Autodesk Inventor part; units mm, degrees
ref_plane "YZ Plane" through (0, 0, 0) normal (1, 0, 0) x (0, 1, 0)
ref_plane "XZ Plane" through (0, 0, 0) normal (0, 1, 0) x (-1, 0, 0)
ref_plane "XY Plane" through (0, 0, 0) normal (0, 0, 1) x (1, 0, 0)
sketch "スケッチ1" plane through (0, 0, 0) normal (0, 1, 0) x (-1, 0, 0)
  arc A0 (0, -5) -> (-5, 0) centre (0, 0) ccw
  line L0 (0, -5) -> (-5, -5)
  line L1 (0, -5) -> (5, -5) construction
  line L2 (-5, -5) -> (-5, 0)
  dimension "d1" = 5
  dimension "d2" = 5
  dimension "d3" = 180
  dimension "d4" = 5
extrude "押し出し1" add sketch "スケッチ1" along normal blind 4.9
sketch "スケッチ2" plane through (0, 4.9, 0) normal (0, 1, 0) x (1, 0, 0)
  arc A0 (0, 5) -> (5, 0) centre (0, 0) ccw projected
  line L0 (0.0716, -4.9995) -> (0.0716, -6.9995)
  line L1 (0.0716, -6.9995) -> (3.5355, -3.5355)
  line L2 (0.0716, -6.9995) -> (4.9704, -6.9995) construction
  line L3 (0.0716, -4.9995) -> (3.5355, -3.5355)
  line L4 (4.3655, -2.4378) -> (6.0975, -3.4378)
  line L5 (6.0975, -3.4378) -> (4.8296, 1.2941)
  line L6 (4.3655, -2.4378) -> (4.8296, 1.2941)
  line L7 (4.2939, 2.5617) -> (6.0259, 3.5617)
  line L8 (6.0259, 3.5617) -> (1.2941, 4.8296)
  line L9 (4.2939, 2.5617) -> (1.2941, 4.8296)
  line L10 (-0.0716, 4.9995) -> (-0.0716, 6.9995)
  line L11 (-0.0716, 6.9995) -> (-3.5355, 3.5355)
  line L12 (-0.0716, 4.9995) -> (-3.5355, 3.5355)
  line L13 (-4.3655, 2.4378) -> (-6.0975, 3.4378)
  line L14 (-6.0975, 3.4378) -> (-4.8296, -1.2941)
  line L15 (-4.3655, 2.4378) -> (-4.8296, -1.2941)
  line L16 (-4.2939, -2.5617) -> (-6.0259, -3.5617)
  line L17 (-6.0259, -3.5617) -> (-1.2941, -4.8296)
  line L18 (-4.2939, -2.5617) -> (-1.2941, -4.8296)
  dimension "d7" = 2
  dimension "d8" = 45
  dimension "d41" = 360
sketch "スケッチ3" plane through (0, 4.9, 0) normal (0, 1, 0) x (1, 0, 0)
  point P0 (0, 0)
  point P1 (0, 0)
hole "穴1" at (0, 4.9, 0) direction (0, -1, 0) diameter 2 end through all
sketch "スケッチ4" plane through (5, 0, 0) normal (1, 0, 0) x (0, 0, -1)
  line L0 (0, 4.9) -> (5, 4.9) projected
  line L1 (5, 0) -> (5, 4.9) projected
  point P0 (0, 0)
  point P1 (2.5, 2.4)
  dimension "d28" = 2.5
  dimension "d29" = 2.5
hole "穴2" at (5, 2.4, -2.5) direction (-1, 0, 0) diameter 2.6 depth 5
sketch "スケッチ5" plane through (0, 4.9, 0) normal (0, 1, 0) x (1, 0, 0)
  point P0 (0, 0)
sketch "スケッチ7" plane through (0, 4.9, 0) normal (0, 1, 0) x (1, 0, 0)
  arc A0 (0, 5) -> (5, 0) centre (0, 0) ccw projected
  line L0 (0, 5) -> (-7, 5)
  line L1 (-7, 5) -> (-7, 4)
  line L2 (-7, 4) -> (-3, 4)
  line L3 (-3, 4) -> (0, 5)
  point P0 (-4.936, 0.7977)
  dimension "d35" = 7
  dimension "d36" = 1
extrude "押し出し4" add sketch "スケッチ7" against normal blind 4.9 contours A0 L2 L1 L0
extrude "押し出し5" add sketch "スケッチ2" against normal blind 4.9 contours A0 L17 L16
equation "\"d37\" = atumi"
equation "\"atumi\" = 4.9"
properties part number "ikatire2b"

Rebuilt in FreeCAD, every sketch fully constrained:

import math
import FreeCAD as App
import Part
import Sketcher
Q = App.Units.Quantity

doc = App.newDocument("Part")
body = doc.addObject("PartDesign::Body", "Body")

sketch1 = body.newObject("Sketcher::SketchObject", "Sketch")
sketch1.AttachmentSupport = (doc.getObject("XZ_Plane"), [""])
sketch1.MapMode = "FlatFace"
sketch1.addGeometry([
    Part.LineSegment(App.Vector(5, -5, 0), App.Vector(0, -5, 0)),
    Part.ArcOfCircle(Part.Circle(App.Vector(0, 0, 0), App.Vector(0, 0, 1), 5), math.radians(0), math.radians(270)),
    Part.LineSegment(App.Vector(5, 0, 0), App.Vector(5, -5, 0)),
], False)
sketch1.addConstraint([
    Sketcher.Constraint("Tangent", 0, 2, 1, 2),
    Sketcher.Constraint("Tangent", 1, 1, 2, 1),
    Sketcher.Constraint("Coincident", 2, 2, 0, 1),
    Sketcher.Constraint("Horizontal", 0),
    Sketcher.Constraint("Vertical", 2),
    Sketcher.Constraint("Coincident", 1, 3, -1, 1),
    Sketcher.Constraint("Radius", 1, Q("5 mm")),
])
pad1 = body.newObject("PartDesign::Pad", "Pad")
pad1.Profile = sketch1
pad1.Length = 4.9
pad1.Reversed = True

sketch2 = body.newObject("Sketcher::SketchObject", "Sketch001")
sketch2.AttachmentSupport = (doc.getObject("XZ_Plane"), [""])
sketch2.MapMode = "FlatFace"
sketch2.AttachmentOffset = App.Placement(App.Vector(0, 0, -4.9), App.Rotation())
sketch2.addGeometry(Part.Circle(App.Vector(0, 0, 0), App.Vector(0, 0, 1), 1), False)
sketch2.addConstraint([
    Sketcher.Constraint("Coincident", 0, 3, -1, 1),
    Sketcher.Constraint("Diameter", 0, Q("2 mm")),
])
doc.recompute()
hole = body.newObject("PartDesign::Hole", "Hole")
hole.Profile = sketch2
hole.ThreadType = "None"
hole.Diameter = 2
hole.DepthType = "ThroughAll"
hole.Reversed = True

sketch3 = body.newObject("Sketcher::SketchObject", "Sketch002")
sketch3.AttachmentSupport = (doc.getObject("YZ_Plane"), [""])
sketch3.MapMode = "FlatFace"
sketch3.AttachmentOffset = App.Placement(App.Vector(0, 0, 5), App.Rotation())
sketch3.addGeometry(Part.Circle(App.Vector(2.4, -2.5, 0), App.Vector(0, 0, 1), 1.3), False)
sketch3.addConstraint([
    Sketcher.Constraint("Diameter", 0, Q("2.6 mm")),
    Sketcher.Constraint("DistanceX", -1, 1, 0, 3, Q("2.4 mm")),
    Sketcher.Constraint("DistanceY", 0, 3, -1, 1, Q("2.5 mm")),
])
doc.recompute()
hole2 = body.newObject("PartDesign::Hole", "Hole001")
hole2.Profile = sketch3
hole2.ThreadType = "None"
hole2.Diameter = 2.6
hole2.DepthType = "Dimension"
hole2.Depth = 5
hole2.DrillPoint = "Flat"

sketch4 = body.newObject("Sketcher::SketchObject", "Sketch003")
sketch4.AttachmentSupport = (doc.getObject("XZ_Plane"), [""])
sketch4.MapMode = "FlatFace"
sketch4.AttachmentOffset = App.Placement(App.Vector(0, 0, -4.9), App.Rotation())
sketch4.addGeometry([
    Part.ArcOfCircle(Part.Circle(App.Vector(0, 0, 0), App.Vector(0, 0, 1), 5), math.radians(-126.869898), math.radians(-90)),
    Part.LineSegment(App.Vector(0, -5, 0), App.Vector(-7, -5, 0)),
    Part.LineSegment(App.Vector(-7, -5, 0), App.Vector(-7, -4, 0)),
    Part.LineSegment(App.Vector(-7, -4, 0), App.Vector(-3, -4, 0)),
], False)
sketch4.addConstraint([
    Sketcher.Constraint("Tangent", 0, 2, 1, 1),
    Sketcher.Constraint("Coincident", 1, 2, 2, 1),
    Sketcher.Constraint("Coincident", 2, 2, 3, 1),
    Sketcher.Constraint("Coincident", 3, 2, 0, 1),
    Sketcher.Constraint("Horizontal", 1),
    Sketcher.Constraint("Vertical", 2),
    Sketcher.Constraint("Horizontal", 3),
    Sketcher.Constraint("Coincident", 0, 3, -1, 1),
    Sketcher.Constraint("DistanceX", 1, 2, 1, 1, Q("7 mm")),
    Sketcher.Constraint("DistanceY", 2, 1, 2, 2, Q("1 mm")),
    Sketcher.Constraint("Radius", 0, Q("5 mm")),
])
pad2 = body.newObject("PartDesign::Pad", "Pad001")
pad2.Profile = sketch4
pad2.Length = 4.9

sketch5 = body.newObject("Sketcher::SketchObject", "Sketch004")
sketch5.AttachmentSupport = (doc.getObject("XZ_Plane"), [""])
sketch5.MapMode = "FlatFace"
sketch5.AttachmentOffset = App.Placement(App.Vector(0, 0, -4.9), App.Rotation())
sketch5.addGeometry([
    Part.ArcOfCircle(Part.Circle(App.Vector(0, 0, 0), App.Vector(0, 0, 1), 5), math.radians(105.000139), math.radians(149.180099)),
    Part.LineSegment(App.Vector(-4.2939, 2.5617, 0), App.Vector(-6.0259, 3.5617, 0)),
    Part.LineSegment(App.Vector(-6.0259, 3.5617, 0), App.Vector(-1.2941, 4.8296, 0)),
], False)
sketch5.addConstraint([
    Sketcher.Constraint("Coincident", 0, 2, 1, 1),
    Sketcher.Constraint("Coincident", 1, 2, 2, 1),
    Sketcher.Constraint("Tangent", 2, 2, 0, 1),
    Sketcher.Constraint("Coincident", 0, 3, -1, 1),
    Sketcher.Constraint("Distance", 1, Q("2 mm")),
    Sketcher.Constraint("Radius", 0, Q("5 mm")),
    Sketcher.Constraint("Angle", 1, Q("149.9993 deg")),
    Sketcher.Constraint("Angle", 2, Q("15.0002 deg")),
])
pad3 = body.newObject("PartDesign::Pad", "Pad002")
pad3.Profile = sketch5
pad3.Length = 4.9

doc.recompute()
